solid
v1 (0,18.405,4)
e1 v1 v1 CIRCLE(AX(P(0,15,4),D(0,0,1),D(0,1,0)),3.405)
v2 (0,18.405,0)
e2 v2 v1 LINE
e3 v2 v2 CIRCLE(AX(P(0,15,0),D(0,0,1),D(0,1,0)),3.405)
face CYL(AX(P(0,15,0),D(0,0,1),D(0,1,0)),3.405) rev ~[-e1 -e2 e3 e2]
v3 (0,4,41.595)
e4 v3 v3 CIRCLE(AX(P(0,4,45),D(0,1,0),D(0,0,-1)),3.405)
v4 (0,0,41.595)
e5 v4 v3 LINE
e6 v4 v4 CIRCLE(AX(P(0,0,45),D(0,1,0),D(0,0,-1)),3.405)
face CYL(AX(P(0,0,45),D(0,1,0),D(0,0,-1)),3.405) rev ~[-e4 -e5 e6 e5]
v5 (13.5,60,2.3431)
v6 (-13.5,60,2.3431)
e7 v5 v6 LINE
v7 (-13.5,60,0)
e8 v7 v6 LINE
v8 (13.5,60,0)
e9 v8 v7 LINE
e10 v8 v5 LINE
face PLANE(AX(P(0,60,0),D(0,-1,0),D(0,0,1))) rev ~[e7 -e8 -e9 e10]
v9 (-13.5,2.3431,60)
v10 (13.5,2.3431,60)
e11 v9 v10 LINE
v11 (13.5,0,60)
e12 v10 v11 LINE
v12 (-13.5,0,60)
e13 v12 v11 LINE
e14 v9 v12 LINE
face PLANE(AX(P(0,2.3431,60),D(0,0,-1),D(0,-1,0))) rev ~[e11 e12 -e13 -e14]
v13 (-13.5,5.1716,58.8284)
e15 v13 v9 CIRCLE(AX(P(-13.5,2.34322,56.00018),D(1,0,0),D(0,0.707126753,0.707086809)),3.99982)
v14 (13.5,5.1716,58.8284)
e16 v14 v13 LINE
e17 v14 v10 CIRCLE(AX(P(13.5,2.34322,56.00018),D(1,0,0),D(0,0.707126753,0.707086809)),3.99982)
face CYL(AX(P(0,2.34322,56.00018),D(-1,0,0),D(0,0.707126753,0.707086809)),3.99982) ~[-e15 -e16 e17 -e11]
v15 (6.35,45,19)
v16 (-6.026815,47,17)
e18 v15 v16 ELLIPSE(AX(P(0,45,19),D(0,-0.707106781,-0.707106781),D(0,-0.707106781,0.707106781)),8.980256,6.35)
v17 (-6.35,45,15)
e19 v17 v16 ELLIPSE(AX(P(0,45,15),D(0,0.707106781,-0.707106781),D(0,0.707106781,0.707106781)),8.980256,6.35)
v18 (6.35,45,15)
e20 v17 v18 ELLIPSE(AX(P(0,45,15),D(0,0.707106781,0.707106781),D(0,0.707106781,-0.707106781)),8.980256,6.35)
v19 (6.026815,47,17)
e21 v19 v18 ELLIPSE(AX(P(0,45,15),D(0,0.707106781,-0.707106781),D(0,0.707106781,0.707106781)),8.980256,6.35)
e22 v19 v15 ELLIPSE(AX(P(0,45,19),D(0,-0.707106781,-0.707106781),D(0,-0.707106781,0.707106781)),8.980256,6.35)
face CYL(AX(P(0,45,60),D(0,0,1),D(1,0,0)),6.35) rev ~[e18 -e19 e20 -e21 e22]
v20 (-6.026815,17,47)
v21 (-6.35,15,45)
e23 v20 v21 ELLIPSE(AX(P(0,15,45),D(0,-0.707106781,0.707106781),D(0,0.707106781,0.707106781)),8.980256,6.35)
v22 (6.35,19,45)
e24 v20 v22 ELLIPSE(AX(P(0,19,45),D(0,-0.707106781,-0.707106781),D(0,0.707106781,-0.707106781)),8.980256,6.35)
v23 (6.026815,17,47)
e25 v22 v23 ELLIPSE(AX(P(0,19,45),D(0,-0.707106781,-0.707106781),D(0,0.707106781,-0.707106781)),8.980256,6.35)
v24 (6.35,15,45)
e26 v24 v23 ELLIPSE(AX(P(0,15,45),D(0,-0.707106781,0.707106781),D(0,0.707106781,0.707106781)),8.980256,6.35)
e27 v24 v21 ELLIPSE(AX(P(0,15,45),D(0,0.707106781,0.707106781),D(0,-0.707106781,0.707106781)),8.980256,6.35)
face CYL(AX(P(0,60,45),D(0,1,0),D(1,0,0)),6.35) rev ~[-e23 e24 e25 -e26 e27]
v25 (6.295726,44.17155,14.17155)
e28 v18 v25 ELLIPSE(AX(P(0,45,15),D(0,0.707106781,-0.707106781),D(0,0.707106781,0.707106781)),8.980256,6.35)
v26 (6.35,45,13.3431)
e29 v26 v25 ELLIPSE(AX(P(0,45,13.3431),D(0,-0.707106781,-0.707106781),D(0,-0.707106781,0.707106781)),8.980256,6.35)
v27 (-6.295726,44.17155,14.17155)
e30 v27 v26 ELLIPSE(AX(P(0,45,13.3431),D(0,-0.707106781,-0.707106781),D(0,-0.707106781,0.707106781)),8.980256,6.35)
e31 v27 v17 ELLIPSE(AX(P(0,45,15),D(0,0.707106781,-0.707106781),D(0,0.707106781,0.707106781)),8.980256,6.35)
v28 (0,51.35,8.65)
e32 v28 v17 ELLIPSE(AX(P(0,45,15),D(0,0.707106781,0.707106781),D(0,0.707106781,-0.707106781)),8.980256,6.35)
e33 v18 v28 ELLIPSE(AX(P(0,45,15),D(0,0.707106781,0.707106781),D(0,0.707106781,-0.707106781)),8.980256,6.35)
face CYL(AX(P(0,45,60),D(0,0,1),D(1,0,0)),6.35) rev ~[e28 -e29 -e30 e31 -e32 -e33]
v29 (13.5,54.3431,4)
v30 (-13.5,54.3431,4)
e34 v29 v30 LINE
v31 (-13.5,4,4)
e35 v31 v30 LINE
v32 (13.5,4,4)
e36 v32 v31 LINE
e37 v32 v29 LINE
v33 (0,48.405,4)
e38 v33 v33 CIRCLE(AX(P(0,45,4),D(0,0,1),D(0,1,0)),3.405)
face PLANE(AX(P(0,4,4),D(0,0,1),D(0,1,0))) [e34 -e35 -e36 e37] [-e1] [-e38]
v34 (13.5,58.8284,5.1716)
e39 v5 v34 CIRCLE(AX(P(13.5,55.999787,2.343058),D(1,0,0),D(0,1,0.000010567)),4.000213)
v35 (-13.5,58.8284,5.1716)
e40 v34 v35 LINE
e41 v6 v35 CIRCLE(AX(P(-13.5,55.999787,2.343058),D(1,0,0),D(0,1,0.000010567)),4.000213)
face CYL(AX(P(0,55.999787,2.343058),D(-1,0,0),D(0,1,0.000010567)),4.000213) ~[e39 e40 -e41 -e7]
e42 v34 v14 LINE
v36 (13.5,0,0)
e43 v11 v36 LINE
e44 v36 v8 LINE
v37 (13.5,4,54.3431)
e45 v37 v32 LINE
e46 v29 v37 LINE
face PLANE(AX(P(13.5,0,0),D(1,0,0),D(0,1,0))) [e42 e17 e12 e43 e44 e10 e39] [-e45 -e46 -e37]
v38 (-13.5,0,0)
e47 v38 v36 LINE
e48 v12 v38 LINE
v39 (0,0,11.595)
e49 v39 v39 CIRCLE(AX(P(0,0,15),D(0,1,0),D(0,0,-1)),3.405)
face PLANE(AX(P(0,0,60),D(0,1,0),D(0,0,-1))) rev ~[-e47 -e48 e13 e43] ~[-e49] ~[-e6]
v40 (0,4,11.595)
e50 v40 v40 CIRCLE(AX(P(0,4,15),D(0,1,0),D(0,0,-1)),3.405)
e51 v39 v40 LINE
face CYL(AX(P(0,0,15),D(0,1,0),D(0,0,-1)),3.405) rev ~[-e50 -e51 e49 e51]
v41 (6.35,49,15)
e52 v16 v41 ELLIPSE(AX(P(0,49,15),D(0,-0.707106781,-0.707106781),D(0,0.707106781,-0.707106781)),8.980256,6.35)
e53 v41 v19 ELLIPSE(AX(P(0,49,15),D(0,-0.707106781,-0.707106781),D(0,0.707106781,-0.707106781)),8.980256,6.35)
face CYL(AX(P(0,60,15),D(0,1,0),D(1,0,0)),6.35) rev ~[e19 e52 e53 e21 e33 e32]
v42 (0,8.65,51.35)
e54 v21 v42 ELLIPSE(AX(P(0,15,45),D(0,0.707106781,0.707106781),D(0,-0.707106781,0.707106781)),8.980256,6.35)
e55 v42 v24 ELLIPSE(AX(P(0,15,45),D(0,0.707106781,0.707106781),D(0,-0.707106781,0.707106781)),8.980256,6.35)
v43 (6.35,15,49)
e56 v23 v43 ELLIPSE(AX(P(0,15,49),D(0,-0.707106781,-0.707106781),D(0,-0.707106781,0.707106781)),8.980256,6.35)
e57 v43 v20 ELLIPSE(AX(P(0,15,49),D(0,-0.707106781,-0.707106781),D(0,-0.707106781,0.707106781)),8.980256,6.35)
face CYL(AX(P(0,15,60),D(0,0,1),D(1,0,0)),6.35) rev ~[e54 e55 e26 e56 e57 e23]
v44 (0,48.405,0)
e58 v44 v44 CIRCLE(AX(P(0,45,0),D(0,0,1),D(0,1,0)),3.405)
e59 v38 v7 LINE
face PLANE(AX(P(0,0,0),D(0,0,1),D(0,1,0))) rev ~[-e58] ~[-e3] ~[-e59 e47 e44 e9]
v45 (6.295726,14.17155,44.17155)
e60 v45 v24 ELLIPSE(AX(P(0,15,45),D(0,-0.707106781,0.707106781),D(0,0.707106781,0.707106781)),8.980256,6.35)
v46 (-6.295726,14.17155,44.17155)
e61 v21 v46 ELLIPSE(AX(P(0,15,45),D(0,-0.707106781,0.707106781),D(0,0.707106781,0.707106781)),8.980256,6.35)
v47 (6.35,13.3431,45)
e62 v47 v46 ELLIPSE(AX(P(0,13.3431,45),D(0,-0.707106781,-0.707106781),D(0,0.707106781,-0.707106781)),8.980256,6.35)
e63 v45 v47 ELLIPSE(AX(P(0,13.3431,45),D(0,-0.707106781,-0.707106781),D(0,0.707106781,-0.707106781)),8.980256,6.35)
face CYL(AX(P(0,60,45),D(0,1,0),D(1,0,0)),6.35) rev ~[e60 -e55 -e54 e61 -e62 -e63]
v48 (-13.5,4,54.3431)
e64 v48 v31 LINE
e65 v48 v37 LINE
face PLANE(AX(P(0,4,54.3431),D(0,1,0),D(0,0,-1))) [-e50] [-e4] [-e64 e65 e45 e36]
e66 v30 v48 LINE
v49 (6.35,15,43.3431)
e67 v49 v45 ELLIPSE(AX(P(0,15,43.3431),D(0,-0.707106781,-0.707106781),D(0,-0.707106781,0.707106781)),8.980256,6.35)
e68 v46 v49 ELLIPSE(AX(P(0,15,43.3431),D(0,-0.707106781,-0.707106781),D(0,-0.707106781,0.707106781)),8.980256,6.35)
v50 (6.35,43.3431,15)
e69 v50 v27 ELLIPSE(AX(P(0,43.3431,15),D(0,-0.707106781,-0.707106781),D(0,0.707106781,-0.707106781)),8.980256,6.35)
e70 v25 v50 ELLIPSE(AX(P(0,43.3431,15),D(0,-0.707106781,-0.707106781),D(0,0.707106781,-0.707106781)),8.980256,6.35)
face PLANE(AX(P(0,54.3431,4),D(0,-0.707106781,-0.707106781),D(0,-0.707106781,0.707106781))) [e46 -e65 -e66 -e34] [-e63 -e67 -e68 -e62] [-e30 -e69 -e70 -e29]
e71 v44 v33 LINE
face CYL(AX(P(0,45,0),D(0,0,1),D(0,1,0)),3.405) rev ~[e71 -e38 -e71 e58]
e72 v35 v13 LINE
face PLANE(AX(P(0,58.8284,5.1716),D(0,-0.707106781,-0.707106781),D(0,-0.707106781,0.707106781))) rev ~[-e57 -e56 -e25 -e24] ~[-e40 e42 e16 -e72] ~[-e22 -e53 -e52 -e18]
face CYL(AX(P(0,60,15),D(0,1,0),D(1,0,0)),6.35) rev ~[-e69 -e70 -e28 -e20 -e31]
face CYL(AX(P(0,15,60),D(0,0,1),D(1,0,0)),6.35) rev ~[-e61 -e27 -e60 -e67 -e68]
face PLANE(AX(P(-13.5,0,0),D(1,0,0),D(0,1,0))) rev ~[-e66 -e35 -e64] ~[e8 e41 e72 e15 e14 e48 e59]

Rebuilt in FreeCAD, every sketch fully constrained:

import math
import FreeCAD as App
import Part
import Sketcher
Q = App.Units.Quantity

doc = App.newDocument("Part")
params = doc.addObject("Spreadsheet::Sheet", "Params")
for row, (alias, value) in enumerate([
    ("sketch1_radius", "4 mm"),
    ("sketch1_width", "60 mm"),
    ("pad1_length", "27 mm"),
    ("sketch2_diameter", "6.81 mm"),
    ("hole_diameter", "6.81 mm"),
    ("hole_depth", "4 mm"),
    ("sketch3_diameter", "6.81 mm"),
    ("hole2_diameter", "6.81 mm"),
    ("hole2_depth", "4 mm"),
    ("sketch4_diameter", "12.7 mm"),
    ("pocket1_length", "56 mm"),
    ("sketch5_diameter", "12.7 mm"),
    ("pocket2_length", "56 mm"),
    ("sketch6_diameter", "6.81 mm"),
    ("hole3_diameter", "6.81 mm"),
    ("hole3_depth", "4 mm"),
    ("sketch7_diameter", "6.81 mm"),
    ("hole4_diameter", "6.81 mm"),
    ("hole4_depth", "4 mm"),
    ("sketch8_diameter", "12.7 mm"),
    ("pocket3_length", "56 mm"),
    ("sketch9_diameter", "12.7 mm"),
    ("pocket4_length", "56 mm"),
], start=1):
    params.set(f"A{row}", alias)
    params.set(f"B{row}", "=" + value)
    params.setAlias(f"B{row}", alias)

body = doc.addObject("PartDesign::Body", "Body")

sketch1 = body.newObject("Sketcher::SketchObject", "Sketch")
sketch1.AttachmentSupport = (doc.getObject("YZ_Plane"), [""])
sketch1.MapMode = "FlatFace"
sketch1.addGeometry(Part.ArcOfCircle(Part.Circle(App.Vector(2.3431, 56, 0), App.Vector(0, 0, 1), 4.000032), math.radians(44.998987), math.radians(90)), False)
sketch1.addGeometry(Part.LineSegment(App.Vector(2.3431, 60, 0), App.Vector(0, 60, 0)), False)
sketch1.addGeometry(Part.LineSegment(App.Vector(0, 60, 0), App.Vector(0, 0, 0)), False)
sketch1.addGeometry(Part.LineSegment(App.Vector(0, 0, 0), App.Vector(60, 0, 0)), False)
sketch1.addGeometry(Part.LineSegment(App.Vector(60, 0, 0), App.Vector(60, 2.3431, 0)), False)
sketch1.addGeometry(Part.ArcOfCircle(Part.Circle(App.Vector(56, 2.3431, 0), App.Vector(0, 0, 1), 4), math.radians(0), math.radians(45.001013)), False)
sketch1.addGeometry(Part.LineSegment(App.Vector(58.8284, 5.1716, 0), App.Vector(5.1716, 58.8284, 0)), False)
sketch1.addGeometry(Part.LineSegment(App.Vector(4, 4, 0), App.Vector(4, 54.3431, 0)), False)
sketch1.addGeometry(Part.LineSegment(App.Vector(4, 54.3431, 0), App.Vector(54.3431, 4, 0)), False)
sketch1.addGeometry(Part.LineSegment(App.Vector(54.3431, 4, 0), App.Vector(4, 4, 0)), False)
sketch1.addConstraint(Sketcher.Constraint("Tangent", 0, 2, 1, 1))
sketch1.addConstraint(Sketcher.Constraint("Coincident", 1, 2, 2, 1))
sketch1.addConstraint(Sketcher.Constraint("Coincident", 2, 2, 3, 1))
sketch1.addConstraint(Sketcher.Constraint("Coincident", 3, 2, 4, 1))
sketch1.addConstraint(Sketcher.Constraint("Tangent", 4, 2, 5, 1))
sketch1.addConstraint(Sketcher.Constraint("Tangent", 5, 2, 6, 1))
sketch1.addConstraint(Sketcher.Constraint("Tangent", 6, 2, 0, 1))
sketch1.addConstraint(Sketcher.Constraint("Coincident", 7, 2, 8, 1))
sketch1.addConstraint(Sketcher.Constraint("Coincident", 8, 2, 9, 1))
sketch1.addConstraint(Sketcher.Constraint("Coincident", 9, 2, 7, 1))
sketch1.addConstraint(Sketcher.Constraint("Horizontal", 1))
sketch1.addConstraint(Sketcher.Constraint("Vertical", 2))
sketch1.addConstraint(Sketcher.Constraint("Horizontal", 3))
sketch1.addConstraint(Sketcher.Constraint("Vertical", 4))
sketch1.addConstraint(Sketcher.Constraint("Vertical", 7))
sketch1.addConstraint(Sketcher.Constraint("Horizontal", 9))
sketch1.addConstraint(Sketcher.Constraint("Coincident", 2, 2, -1, 1))
sketch1.addConstraint(Sketcher.Constraint("Equal", 0, 5))
sketch1.addConstraint(Sketcher.Constraint("Parallel", 6, 8))
sketch1.addConstraint(Sketcher.Constraint("Equal", 3, 2))
sketch1.addConstraint(Sketcher.Constraint("Equal", 1, 4))
sketch1.addConstraint(Sketcher.Constraint("Radius", 0, Q("4 mm")))
sketch1.addConstraint(Sketcher.Constraint("DistanceX", 3, 1, 3, 2, Q("60 mm")))
sketch1.addConstraint(Sketcher.Constraint("DistanceX", -1, 1, 7, 2, Q("4 mm")))
sketch1.addConstraint(Sketcher.Constraint("DistanceY", -1, 1, 8, 2, Q("4 mm")))
sketch1.addConstraint(Sketcher.Constraint("DistanceX", 1, 2, 1, 1, Q("2.343 mm")))
sketch1.addConstraint(Sketcher.Constraint("DistanceX", 9, 2, 9, 1, Q("50.343 mm")))
sketch1.setExpression("Constraints[21]", "Params.sketch1_radius")
sketch1.setExpression("Constraints[22]", "Params.sketch1_width")
pad1 = body.newObject("PartDesign::Pad", "Pad")
pad1.Profile = sketch1
pad1.setExpression("Length", "Params.pad1_length")
pad1.Midplane = True

sketch2 = body.newObject("Sketcher::SketchObject", "Sketch001")
sketch2.AttachmentSupport = (doc.getObject("XZ_Plane"), [""])
sketch2.MapMode = "FlatFace"
sketch2.addGeometry(Part.Circle(App.Vector(0, 15, 0), App.Vector(0, 0, 1), 3.405), False)
sketch2.addConstraint(Sketcher.Constraint("PointOnObject", 0, 3, -2))
sketch2.addConstraint(Sketcher.Constraint("Diameter", 0, Q("6.81 mm")))
sketch2.addConstraint(Sketcher.Constraint("DistanceY", -1, 1, 0, 3, Q("15 mm")))
sketch2.setExpression("Constraints[1]", "Params.sketch2_diameter")
doc.recompute()
hole = body.newObject("PartDesign::Hole", "Hole")
hole.Profile = sketch2
hole.ThreadType = "None"
hole.setExpression("Diameter", "Params.hole_diameter")
hole.DepthType = "Dimension"
hole.setExpression("Depth", "Params.hole_depth")
hole.DrillPoint = "Flat"

sketch3 = body.newObject("Sketcher::SketchObject", "Sketch002")
sketch3.AttachmentSupport = (doc.getObject("XY_Plane"), [""])
sketch3.MapMode = "FlatFace"
sketch3.addGeometry(Part.Circle(App.Vector(0, 15, 0), App.Vector(0, 0, 1), 3.405), False)
sketch3.addConstraint(Sketcher.Constraint("PointOnObject", 0, 3, -2))
sketch3.addConstraint(Sketcher.Constraint("Diameter", 0, Q("6.81 mm")))
sketch3.addConstraint(Sketcher.Constraint("DistanceY", -1, 1, 0, 3, Q("15 mm")))
sketch3.setExpression("Constraints[1]", "Params.sketch3_diameter")
doc.recompute()
hole2 = body.newObject("PartDesign::Hole", "Hole001")
hole2.Profile = sketch3
hole2.ThreadType = "None"
hole2.setExpression("Diameter", "Params.hole2_diameter")
hole2.DepthType = "Dimension"
hole2.setExpression("Depth", "Params.hole2_depth")
hole2.DrillPoint = "Flat"
hole2.Reversed = True

sketch4 = body.newObject("Sketcher::SketchObject", "Sketch003")
sketch4.AttachmentSupport = (doc.getObject("XY_Plane"), [""])
sketch4.MapMode = "FlatFace"
sketch4.AttachmentOffset = App.Placement(App.Vector(0, 0, 60), App.Rotation())
sketch4.addGeometry(Part.Circle(App.Vector(0, 15, 0), App.Vector(0, 0, 1), 6.35), False)
sketch4.addConstraint(Sketcher.Constraint("PointOnObject", 0, 3, -2))
sketch4.addConstraint(Sketcher.Constraint("Diameter", 0, Q("12.7 mm")))
sketch4.addConstraint(Sketcher.Constraint("DistanceY", -1, 1, 0, 3, Q("15 mm")))
sketch4.setExpression("Constraints[1]", "Params.sketch4_diameter")
pocket1 = body.newObject("PartDesign::Pocket", "Pocket")
pocket1.Profile = sketch4
pocket1.setExpression("Length", "Params.pocket1_length")

sketch5 = body.newObject("Sketcher::SketchObject", "Sketch004")
sketch5.AttachmentSupport = (doc.getObject("XZ_Plane"), [""])
sketch5.MapMode = "FlatFace"
sketch5.AttachmentOffset = App.Placement(App.Vector(0, 0, -60), App.Rotation())
sketch5.addGeometry(Part.Circle(App.Vector(0, 15, 0), App.Vector(0, 0, 1), 6.35), False)
sketch5.addConstraint(Sketcher.Constraint("PointOnObject", 0, 3, -2))
sketch5.addConstraint(Sketcher.Constraint("Diameter", 0, Q("12.7 mm")))
sketch5.addConstraint(Sketcher.Constraint("DistanceY", -1, 1, 0, 3, Q("15 mm")))
sketch5.setExpression("Constraints[1]", "Params.sketch5_diameter")
pocket2 = body.newObject("PartDesign::Pocket", "Pocket001")
pocket2.Profile = sketch5
pocket2.setExpression("Length", "Params.pocket2_length")
pocket2.Reversed = True

sketch6 = body.newObject("Sketcher::SketchObject", "Sketch005")
sketch6.AttachmentSupport = (doc.getObject("XY_Plane"), [""])
sketch6.MapMode = "FlatFace"
sketch6.addGeometry(Part.Circle(App.Vector(0, 45, 0), App.Vector(0, 0, 1), 3.405), False)
sketch6.addConstraint(Sketcher.Constraint("PointOnObject", 0, 3, -2))
sketch6.addConstraint(Sketcher.Constraint("Diameter", 0, Q("6.81 mm")))
sketch6.addConstraint(Sketcher.Constraint("DistanceY", -1, 1, 0, 3, Q("45 mm")))
sketch6.setExpression("Constraints[1]", "Params.sketch6_diameter")
doc.recompute()
hole3 = body.newObject("PartDesign::Hole", "Hole002")
hole3.Profile = sketch6
hole3.ThreadType = "None"
hole3.setExpression("Diameter", "Params.hole3_diameter")
hole3.DepthType = "Dimension"
hole3.setExpression("Depth", "Params.hole3_depth")
hole3.DrillPoint = "Flat"
hole3.Reversed = True

sketch7 = body.newObject("Sketcher::SketchObject", "Sketch006")
sketch7.AttachmentSupport = (doc.getObject("XZ_Plane"), [""])
sketch7.MapMode = "FlatFace"
sketch7.addGeometry(Part.Circle(App.Vector(0, 45, 0), App.Vector(0, 0, 1), 3.405), False)
sketch7.addConstraint(Sketcher.Constraint("PointOnObject", 0, 3, -2))
sketch7.addConstraint(Sketcher.Constraint("Diameter", 0, Q("6.81 mm")))
sketch7.addConstraint(Sketcher.Constraint("DistanceY", -1, 1, 0, 3, Q("45 mm")))
sketch7.setExpression("Constraints[1]", "Params.sketch7_diameter")
doc.recompute()
hole4 = body.newObject("PartDesign::Hole", "Hole003")
hole4.Profile = sketch7
hole4.ThreadType = "None"
hole4.setExpression("Diameter", "Params.hole4_diameter")
hole4.DepthType = "Dimension"
hole4.setExpression("Depth", "Params.hole4_depth")
hole4.DrillPoint = "Flat"

sketch8 = body.newObject("Sketcher::SketchObject", "Sketch007")
sketch8.AttachmentSupport = (doc.getObject("XY_Plane"), [""])
sketch8.MapMode = "FlatFace"
sketch8.AttachmentOffset = App.Placement(App.Vector(0, 0, 60), App.Rotation())
sketch8.addGeometry(Part.Circle(App.Vector(0, 45, 0), App.Vector(0, 0, 1), 6.35), False)
sketch8.addConstraint(Sketcher.Constraint("PointOnObject", 0, 3, -2))
sketch8.addConstraint(Sketcher.Constraint("Diameter", 0, Q("12.7 mm")))
sketch8.addConstraint(Sketcher.Constraint("DistanceY", -1, 1, 0, 3, Q("45 mm")))
sketch8.setExpression("Constraints[1]", "Params.sketch8_diameter")
pocket3 = body.newObject("PartDesign::Pocket", "Pocket002")
pocket3.Profile = sketch8
pocket3.setExpression("Length", "Params.pocket3_length")

sketch9 = body.newObject("Sketcher::SketchObject", "Sketch008")
sketch9.AttachmentSupport = (doc.getObject("XZ_Plane"), [""])
sketch9.MapMode = "FlatFace"
sketch9.AttachmentOffset = App.Placement(App.Vector(0, 0, -60), App.Rotation())
sketch9.addGeometry(Part.Circle(App.Vector(0, 45, 0), App.Vector(0, 0, 1), 6.35), False)
sketch9.addConstraint(Sketcher.Constraint("PointOnObject", 0, 3, -2))
sketch9.addConstraint(Sketcher.Constraint("Diameter", 0, Q("12.7 mm")))
sketch9.addConstraint(Sketcher.Constraint("DistanceY", -1, 1, 0, 3, Q("45 mm")))
sketch9.setExpression("Constraints[1]", "Params.sketch9_diameter")
pocket4 = body.newObject("PartDesign::Pocket", "Pocket003")
pocket4.Profile = sketch9
pocket4.setExpression("Length", "Params.pocket4_length")
pocket4.Reversed = True

doc.recompute()
